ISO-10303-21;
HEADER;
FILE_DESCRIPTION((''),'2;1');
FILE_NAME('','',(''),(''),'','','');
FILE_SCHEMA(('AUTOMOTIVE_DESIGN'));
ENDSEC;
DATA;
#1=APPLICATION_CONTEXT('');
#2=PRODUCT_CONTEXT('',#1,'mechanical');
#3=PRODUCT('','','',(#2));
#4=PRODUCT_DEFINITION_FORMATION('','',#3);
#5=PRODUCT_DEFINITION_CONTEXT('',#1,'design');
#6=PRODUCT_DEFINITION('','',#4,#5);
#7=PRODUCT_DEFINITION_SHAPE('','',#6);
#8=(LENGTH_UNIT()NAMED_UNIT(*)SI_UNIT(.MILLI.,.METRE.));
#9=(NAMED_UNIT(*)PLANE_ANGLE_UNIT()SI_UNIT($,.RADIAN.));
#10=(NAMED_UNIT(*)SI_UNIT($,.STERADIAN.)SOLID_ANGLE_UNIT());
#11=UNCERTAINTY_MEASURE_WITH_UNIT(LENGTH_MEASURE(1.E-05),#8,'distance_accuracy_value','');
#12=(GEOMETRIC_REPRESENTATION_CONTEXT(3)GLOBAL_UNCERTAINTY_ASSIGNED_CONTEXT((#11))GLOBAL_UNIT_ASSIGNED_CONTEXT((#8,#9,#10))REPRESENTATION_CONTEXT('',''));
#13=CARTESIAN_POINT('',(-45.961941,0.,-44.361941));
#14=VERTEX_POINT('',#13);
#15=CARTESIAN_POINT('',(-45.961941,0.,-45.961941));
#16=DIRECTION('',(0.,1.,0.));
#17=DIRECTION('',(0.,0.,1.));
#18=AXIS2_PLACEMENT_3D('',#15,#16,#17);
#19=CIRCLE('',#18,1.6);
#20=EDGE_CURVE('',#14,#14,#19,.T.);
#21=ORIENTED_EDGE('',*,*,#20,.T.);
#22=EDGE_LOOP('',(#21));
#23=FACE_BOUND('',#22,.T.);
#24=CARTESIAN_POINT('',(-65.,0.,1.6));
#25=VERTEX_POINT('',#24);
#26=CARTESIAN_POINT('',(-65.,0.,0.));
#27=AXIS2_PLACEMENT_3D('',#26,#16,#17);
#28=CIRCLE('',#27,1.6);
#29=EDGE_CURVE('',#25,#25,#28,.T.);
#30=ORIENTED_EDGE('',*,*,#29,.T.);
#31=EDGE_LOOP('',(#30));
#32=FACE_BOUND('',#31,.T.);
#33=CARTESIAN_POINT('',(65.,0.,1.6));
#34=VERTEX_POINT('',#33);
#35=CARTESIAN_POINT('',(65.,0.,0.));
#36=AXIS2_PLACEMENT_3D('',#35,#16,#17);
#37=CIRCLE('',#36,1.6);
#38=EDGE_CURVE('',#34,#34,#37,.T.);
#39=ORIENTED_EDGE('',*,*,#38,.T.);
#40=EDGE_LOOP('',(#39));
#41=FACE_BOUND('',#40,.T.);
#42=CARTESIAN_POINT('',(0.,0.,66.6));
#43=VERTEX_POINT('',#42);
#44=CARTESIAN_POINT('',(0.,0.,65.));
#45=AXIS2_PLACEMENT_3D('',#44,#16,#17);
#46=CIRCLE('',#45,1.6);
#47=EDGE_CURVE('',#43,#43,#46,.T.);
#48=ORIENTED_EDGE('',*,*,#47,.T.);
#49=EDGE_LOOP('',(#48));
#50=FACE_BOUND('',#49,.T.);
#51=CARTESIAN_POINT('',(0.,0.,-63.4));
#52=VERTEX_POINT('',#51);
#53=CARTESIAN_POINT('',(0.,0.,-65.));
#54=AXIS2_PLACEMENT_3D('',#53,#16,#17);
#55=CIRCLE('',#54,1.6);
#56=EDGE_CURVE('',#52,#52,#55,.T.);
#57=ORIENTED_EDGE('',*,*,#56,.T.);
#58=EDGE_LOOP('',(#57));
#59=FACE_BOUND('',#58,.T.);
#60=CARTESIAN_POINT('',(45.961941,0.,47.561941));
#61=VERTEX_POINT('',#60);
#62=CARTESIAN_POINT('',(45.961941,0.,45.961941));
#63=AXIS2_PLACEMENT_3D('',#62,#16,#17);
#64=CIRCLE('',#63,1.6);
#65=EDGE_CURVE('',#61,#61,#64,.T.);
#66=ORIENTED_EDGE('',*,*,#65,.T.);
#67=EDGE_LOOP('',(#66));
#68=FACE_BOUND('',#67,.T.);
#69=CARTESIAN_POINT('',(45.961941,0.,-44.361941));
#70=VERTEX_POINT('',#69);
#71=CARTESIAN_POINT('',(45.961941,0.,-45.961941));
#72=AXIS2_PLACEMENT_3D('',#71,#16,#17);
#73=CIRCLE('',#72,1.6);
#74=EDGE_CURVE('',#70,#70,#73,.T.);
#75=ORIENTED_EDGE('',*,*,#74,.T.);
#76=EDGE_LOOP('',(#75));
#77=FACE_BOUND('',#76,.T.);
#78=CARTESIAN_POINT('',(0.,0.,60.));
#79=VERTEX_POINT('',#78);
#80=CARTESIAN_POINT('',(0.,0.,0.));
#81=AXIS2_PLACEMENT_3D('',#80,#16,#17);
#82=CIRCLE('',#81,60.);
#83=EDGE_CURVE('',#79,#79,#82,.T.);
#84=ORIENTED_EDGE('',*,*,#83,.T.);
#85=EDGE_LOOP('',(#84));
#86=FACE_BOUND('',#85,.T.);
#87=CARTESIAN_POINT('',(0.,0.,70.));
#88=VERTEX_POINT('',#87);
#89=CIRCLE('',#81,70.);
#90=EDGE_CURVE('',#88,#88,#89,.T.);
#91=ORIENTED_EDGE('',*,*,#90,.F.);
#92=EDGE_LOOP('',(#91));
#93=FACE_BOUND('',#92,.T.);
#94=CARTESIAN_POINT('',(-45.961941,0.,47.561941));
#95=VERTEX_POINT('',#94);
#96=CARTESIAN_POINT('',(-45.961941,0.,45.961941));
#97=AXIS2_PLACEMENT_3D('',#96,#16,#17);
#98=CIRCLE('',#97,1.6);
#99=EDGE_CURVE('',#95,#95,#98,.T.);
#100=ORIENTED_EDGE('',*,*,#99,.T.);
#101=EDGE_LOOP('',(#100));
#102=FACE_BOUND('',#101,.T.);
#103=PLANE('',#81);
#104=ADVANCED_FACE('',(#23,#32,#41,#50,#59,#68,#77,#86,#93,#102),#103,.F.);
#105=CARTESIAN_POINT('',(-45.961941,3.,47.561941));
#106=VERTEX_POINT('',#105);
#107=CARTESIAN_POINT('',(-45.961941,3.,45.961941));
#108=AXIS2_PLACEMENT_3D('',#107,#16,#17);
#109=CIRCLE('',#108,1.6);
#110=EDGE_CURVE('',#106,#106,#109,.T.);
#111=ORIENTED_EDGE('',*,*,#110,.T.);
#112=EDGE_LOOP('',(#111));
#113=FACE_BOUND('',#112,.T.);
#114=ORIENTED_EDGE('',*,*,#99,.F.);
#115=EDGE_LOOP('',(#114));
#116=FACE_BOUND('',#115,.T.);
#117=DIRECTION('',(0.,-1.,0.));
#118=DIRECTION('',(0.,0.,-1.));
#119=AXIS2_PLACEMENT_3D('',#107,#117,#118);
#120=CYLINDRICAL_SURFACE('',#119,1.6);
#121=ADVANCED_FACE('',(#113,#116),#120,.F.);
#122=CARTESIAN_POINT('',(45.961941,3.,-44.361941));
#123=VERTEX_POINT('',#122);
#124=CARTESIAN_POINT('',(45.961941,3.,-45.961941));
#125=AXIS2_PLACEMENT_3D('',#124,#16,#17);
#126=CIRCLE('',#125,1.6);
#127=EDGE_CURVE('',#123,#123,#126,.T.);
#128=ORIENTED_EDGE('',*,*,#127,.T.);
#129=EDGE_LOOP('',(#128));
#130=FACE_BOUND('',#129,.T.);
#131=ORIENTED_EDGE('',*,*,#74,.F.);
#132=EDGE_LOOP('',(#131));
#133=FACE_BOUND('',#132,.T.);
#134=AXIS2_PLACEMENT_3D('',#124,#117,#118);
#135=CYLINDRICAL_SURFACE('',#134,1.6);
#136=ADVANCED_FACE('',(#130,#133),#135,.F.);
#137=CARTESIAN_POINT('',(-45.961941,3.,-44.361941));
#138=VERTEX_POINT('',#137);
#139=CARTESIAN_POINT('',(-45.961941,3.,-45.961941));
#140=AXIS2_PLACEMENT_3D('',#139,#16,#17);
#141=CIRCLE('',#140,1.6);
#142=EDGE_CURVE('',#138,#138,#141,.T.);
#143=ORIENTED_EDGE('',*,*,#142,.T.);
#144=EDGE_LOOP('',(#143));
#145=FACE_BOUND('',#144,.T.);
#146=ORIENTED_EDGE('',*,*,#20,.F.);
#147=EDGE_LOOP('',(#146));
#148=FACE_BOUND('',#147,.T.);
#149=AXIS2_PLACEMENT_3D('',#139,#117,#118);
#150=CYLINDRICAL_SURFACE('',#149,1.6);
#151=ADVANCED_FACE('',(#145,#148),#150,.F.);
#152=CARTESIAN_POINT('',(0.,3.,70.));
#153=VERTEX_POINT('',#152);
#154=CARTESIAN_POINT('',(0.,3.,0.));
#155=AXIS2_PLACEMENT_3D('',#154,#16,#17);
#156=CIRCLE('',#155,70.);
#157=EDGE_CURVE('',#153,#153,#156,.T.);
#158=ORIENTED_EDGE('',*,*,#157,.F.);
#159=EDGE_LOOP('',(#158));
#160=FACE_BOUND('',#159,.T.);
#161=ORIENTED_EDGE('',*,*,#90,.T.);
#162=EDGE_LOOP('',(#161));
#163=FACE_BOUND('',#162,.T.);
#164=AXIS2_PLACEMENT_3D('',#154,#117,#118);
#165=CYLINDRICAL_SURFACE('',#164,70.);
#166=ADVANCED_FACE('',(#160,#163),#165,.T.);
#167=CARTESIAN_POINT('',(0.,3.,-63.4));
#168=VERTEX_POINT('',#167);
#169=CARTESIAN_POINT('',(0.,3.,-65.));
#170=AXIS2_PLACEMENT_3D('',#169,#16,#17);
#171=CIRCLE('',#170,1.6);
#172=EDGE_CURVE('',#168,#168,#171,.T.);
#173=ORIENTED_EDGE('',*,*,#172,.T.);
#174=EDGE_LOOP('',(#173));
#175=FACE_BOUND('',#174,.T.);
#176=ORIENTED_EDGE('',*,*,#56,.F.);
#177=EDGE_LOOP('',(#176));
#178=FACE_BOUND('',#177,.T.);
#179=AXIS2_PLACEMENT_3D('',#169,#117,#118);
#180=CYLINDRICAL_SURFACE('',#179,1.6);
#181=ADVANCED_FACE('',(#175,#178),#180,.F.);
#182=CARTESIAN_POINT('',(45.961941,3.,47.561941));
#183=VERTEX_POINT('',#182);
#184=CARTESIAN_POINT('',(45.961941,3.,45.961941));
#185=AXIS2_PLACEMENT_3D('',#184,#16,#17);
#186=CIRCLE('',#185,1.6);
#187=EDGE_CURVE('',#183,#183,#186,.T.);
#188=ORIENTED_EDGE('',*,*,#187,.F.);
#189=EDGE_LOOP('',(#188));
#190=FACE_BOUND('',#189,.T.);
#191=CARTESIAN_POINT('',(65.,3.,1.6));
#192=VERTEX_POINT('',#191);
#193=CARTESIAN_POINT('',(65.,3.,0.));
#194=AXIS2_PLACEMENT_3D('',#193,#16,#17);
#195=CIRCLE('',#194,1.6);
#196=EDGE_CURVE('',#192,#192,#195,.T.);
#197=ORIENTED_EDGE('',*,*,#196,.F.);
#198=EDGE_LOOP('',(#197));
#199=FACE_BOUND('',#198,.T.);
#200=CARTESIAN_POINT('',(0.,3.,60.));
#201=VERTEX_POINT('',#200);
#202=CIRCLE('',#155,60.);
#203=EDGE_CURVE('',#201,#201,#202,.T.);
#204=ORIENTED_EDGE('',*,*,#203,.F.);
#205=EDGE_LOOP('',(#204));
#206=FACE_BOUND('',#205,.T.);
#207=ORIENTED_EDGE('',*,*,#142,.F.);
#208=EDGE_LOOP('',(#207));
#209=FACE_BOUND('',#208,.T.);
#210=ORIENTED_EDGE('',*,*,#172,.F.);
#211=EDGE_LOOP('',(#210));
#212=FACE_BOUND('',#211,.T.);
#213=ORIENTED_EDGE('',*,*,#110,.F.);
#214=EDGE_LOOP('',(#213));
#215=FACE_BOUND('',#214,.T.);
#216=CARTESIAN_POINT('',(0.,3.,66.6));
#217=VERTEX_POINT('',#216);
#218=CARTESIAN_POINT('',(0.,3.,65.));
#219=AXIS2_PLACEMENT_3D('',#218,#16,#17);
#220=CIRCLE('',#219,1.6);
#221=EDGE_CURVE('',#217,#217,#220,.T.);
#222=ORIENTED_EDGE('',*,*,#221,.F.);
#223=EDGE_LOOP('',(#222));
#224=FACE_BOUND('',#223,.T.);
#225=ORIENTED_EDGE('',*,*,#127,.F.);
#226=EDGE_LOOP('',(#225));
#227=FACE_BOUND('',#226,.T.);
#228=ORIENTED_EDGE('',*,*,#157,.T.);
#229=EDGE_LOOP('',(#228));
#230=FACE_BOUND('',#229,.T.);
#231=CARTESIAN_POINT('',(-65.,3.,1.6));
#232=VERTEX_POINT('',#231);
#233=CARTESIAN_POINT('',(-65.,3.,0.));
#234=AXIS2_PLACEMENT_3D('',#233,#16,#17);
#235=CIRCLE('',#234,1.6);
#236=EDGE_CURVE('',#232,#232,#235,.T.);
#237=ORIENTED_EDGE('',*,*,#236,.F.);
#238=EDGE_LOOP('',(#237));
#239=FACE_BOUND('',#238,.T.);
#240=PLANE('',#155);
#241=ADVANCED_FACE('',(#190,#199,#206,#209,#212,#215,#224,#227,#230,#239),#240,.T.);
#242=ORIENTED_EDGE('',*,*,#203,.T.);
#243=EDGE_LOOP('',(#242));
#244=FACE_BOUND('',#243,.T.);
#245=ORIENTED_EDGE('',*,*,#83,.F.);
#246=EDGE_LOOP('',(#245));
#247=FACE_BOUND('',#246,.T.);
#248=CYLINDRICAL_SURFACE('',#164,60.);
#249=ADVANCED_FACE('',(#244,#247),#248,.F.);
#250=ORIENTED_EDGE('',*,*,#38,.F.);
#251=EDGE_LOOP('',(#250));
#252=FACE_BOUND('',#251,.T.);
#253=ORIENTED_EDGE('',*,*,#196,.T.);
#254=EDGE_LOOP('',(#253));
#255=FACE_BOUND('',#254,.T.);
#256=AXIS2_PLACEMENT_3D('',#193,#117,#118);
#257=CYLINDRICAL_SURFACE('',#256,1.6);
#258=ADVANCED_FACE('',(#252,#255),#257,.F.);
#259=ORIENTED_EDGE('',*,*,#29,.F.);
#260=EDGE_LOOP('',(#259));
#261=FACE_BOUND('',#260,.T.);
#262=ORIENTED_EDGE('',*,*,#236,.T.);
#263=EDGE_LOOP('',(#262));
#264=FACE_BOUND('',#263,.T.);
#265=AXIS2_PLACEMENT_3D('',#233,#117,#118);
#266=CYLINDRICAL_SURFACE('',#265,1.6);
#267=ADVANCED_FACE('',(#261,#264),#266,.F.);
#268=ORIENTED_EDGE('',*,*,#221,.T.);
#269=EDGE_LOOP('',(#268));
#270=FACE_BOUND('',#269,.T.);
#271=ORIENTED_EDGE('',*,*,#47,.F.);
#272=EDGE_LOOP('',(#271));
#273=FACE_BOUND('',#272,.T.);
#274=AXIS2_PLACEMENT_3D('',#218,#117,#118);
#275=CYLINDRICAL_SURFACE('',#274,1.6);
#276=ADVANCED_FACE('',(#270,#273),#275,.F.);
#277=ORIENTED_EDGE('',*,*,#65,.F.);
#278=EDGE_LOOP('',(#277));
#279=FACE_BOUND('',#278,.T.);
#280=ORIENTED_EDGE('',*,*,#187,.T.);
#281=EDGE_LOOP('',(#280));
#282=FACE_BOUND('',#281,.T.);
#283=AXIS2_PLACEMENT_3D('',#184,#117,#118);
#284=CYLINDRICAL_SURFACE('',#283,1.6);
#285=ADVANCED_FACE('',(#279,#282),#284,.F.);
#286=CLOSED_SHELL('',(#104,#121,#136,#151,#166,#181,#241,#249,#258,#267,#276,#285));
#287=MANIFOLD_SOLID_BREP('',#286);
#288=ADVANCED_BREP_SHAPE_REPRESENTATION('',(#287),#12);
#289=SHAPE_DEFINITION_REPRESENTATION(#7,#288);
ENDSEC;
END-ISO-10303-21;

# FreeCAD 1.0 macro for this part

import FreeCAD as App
import Part
import Sketcher
from FreeCAD import Vector
Q = App.Units.Quantity

doc = App.newDocument("Part")
body = doc.addObject("PartDesign::Body", "Body")

sketch1 = body.newObject("Sketcher::SketchObject", "Sketch")
sketch1.AttachmentSupport = (doc.getObject("XZ_Plane"), [""])
sketch1.MapMode = "FlatFace"
sketch1.addGeometry(Part.Circle(Vector(0, 0, 0), Vector(0, 0, 1), 70), False)
sketch1.addGeometry(Part.Circle(Vector(-45.961941, -45.961941, 0), Vector(0, 0, 1), 1.6), False)
sketch1.addGeometry(Part.Circle(Vector(0, -65, 0), Vector(0, 0, 1), 1.6), False)
sketch1.addGeometry(Part.Circle(Vector(-65, 0, 0), Vector(0, 0, 1), 1.6), False)
sketch1.addGeometry(Part.Circle(Vector(-45.961941, 45.961941, 0), Vector(0, 0, 1), 1.6), False)
sketch1.addGeometry(Part.Circle(Vector(45.961941, -45.961941, 0), Vector(0, 0, 1), 1.6), False)
sketch1.addGeometry(Part.Circle(Vector(65, 0, 0), Vector(0, 0, 1), 1.6), False)
sketch1.addGeometry(Part.Circle(Vector(0, 0, 0), Vector(0, 0, 1), 60), False)
sketch1.addGeometry(Part.Circle(Vector(0, 65, 0), Vector(0, 0, 1), 1.6), False)
sketch1.addGeometry(Part.Circle(Vector(45.961941, 45.961941, 0), Vector(0, 0, 1), 1.6), False)
sketch1.addConstraint(Sketcher.Constraint("Coincident", 0, 3, -1, 1))
sketch1.addConstraint(Sketcher.Constraint("Coincident", 7, 3, -1, 1))
sketch1.addConstraint(Sketcher.Constraint("Equal", 1, 2))
sketch1.addConstraint(Sketcher.Constraint("Equal", 2, 3))
sketch1.addConstraint(Sketcher.Constraint("Equal", 3, 4))
sketch1.addConstraint(Sketcher.Constraint("Equal", 4, 5))
sketch1.addConstraint(Sketcher.Constraint("Equal", 5, 6))
sketch1.addConstraint(Sketcher.Constraint("Equal", 6, 8))
sketch1.addConstraint(Sketcher.Constraint("Equal", 8, 9))
sketch1.addConstraint(Sketcher.Constraint("Symmetric", 4, 3, 5, 3, -1, 1))
sketch1.addConstraint(Sketcher.Constraint("Symmetric", 3, 3, 6, 3, -1, 1))
sketch1.addConstraint(Sketcher.Constraint("Symmetric", 2, 3, 8, 3, -1, 1))
sketch1.addConstraint(Sketcher.Constraint("Symmetric", 1, 3, 9, 3, -1, 1))
sketch1.addConstraint(Sketcher.Constraint("Symmetric", 1, 3, 5, 3, -2))
sketch1.addConstraint(Sketcher.Constraint("PointOnObject", 2, 3, -2))
sketch1.addConstraint(Sketcher.Constraint("PointOnObject", 3, 3, -1))
sketch1.addConstraint(Sketcher.Constraint("Diameter", 0, Q("140 mm")))
sketch1.addConstraint(Sketcher.Constraint("Diameter", 7, Q("120 mm")))
sketch1.addConstraint(Sketcher.Constraint("Diameter", 1, Q("3.2 mm")))
sketch1.addConstraint(Sketcher.Constraint("DistanceY", 2, 3, -1, 1, Q("65 mm")))
sketch1.addConstraint(Sketcher.Constraint("DistanceX", 3, 3, -1, 1, Q("65 mm")))
sketch1.addConstraint(Sketcher.Constraint("DistanceX", 1, 3, -1, 1, Q("45.961941 mm")))
sketch1.addConstraint(Sketcher.Constraint("DistanceY", 1, 3, -1, 1, Q("45.961941 mm")))
pad1 = body.newObject("PartDesign::Pad", "Pad")
pad1.Profile = sketch1
pad1.Length = 3
pad1.Reversed = True

doc.recompute()
